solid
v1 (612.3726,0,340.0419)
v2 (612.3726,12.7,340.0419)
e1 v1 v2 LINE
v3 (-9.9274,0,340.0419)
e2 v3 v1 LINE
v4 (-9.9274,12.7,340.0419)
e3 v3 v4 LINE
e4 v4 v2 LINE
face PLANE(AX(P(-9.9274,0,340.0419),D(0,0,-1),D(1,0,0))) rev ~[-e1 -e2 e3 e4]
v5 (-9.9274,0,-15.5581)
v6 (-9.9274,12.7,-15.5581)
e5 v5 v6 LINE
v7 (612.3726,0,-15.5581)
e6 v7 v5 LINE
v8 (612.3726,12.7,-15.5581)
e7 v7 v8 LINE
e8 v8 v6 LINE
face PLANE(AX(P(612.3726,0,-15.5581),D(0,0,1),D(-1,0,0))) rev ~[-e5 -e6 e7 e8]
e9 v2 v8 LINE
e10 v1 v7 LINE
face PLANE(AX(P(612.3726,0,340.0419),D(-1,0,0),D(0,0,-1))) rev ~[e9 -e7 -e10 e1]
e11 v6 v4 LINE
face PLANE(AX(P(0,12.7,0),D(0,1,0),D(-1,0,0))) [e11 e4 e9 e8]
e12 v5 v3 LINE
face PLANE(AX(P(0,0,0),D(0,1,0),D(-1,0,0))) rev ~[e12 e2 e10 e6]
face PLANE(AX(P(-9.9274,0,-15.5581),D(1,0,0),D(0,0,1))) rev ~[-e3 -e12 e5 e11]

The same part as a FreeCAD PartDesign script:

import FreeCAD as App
import Part
import Sketcher

V = App.Vector
Q = App.Units.Quantity


def add_polygon(sketch, points):
    """Adds a closed chain of lines whose ends are joined by coincident constraints."""
    first, n = sketch.GeometryCount, len(points)
    for a, b in zip(points, points[1:] + points[:1]):
        sketch.addGeometry(Part.LineSegment(App.Vector(*a, 0), App.Vector(*b, 0)), False)
    for i in range(n):
        sketch.addConstraint(Sketcher.Constraint("Coincident", first + i, 2, first + (i + 1) % n, 1))

doc = App.newDocument("Part")
body = doc.addObject("PartDesign::Body", "Body")

sketch1 = doc.addObject("Sketcher::SketchObject", "Sketch")
body.addObject(sketch1)
sketch1.AttachmentSupport = (doc.XZ_Plane, [""])
sketch1.MapMode = "FlatFace"
add_polygon(sketch1, [(-10, -16), (-10, 340), (612, 340), (612, -16)])
sketch1.addConstraint([
    Sketcher.Constraint("Vertical", 0),
    Sketcher.Constraint("Horizontal", 1),
    Sketcher.Constraint("Vertical", 2),
    Sketcher.Constraint("Horizontal", 3),
    Sketcher.Constraint("DistanceY", 0, 1, 0, 2, Q("14 in")),
    Sketcher.Constraint("DistanceX", 1, 1, 1, 2, Q("24.5 in")),
    Sketcher.Constraint("DistanceX", 0, 2, -1, 1, 9.9274),
    Sketcher.Constraint("DistanceY", -1, 1, 0, 2, 340.042),
])
pad1 = doc.addObject("PartDesign::Pad", "Pad")
body.addObject(pad1)
pad1.Profile = sketch1
pad1.Length = Q("0.5 in")
pad1.Reversed = True

doc.recompute()
